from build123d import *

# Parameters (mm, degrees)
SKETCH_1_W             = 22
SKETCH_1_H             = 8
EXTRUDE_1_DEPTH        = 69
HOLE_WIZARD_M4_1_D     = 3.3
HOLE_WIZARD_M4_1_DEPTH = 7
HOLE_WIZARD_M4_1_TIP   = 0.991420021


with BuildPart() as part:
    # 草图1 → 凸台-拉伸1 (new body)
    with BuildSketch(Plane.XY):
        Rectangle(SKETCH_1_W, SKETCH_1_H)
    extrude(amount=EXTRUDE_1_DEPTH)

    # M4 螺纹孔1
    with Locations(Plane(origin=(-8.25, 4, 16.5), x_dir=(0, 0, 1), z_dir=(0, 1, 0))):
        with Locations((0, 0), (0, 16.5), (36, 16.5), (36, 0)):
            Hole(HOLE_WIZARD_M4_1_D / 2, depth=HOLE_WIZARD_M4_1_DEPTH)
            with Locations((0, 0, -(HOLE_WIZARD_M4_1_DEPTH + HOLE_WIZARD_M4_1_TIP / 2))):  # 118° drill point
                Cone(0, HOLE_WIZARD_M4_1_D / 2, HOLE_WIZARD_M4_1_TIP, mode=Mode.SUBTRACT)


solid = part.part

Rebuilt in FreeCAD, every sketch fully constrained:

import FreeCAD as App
import Part
import Sketcher

V = App.Vector

doc = App.newDocument("Part")
body = doc.addObject("PartDesign::Body", "Body")

# Sketch on XY plane
sketch1 = body.newObject("Sketcher::SketchObject", "Sketch")
sketch1.AttachmentSupport = (doc.getObject("XY_Plane"), [""])
sketch1.MapMode = "FlatFace"
sketch1.addGeometry(Part.LineSegment(V(-11, 4, 0), V(-11, -4, 0)), False)
sketch1.addGeometry(Part.LineSegment(V(-11, -4, 0), V(11, -4, 0)), False)
sketch1.addGeometry(Part.LineSegment(V(11, -4, 0), V(11, 4, 0)), False)
sketch1.addGeometry(Part.LineSegment(V(11, 4, 0), V(-11, 4, 0)), False)
sketch1.addConstraint(Sketcher.Constraint("Coincident", 0, 2, 1, 1))
sketch1.addConstraint(Sketcher.Constraint("Coincident", 1, 2, 2, 1))
sketch1.addConstraint(Sketcher.Constraint("Coincident", 2, 2, 3, 1))
sketch1.addConstraint(Sketcher.Constraint("Coincident", 3, 2, 0, 1))
sketch1.addConstraint(Sketcher.Constraint("Vertical", 0))
sketch1.addConstraint(Sketcher.Constraint("Horizontal", 1))
sketch1.addConstraint(Sketcher.Constraint("Vertical", 2))
sketch1.addConstraint(Sketcher.Constraint("Horizontal", 3))
sketch1.addConstraint(Sketcher.Constraint("Symmetric", 0, 2, 2, 2, -1, 1))
sketch1.addConstraint(Sketcher.Constraint("DistanceX", 1, 1, 1, 2, 22.0))
sketch1.addConstraint(Sketcher.Constraint("DistanceY", 0, 2, 0, 1, 8.0))
pad1 = body.newObject("PartDesign::Pad", "Pad")
pad1.Profile = sketch1
pad1.Length = 69

# Sketch on XZ plane
sketch2 = body.newObject("Sketcher::SketchObject", "Sketch001")
sketch2.AttachmentSupport = (doc.getObject("XZ_Plane"), [""])
sketch2.MapMode = "FlatFace"
sketch2.AttachmentOffset = App.Placement(V(0, 0, -4), App.Rotation())
sketch2.addGeometry(Part.Circle(V(-8.2, 16.5, 0), V(0, 0, 1), 1.6), False)
sketch2.addGeometry(Part.Circle(V(8.2, 16.5, 0), V(0, 0, 1), 1.6), False)
sketch2.addGeometry(Part.Circle(V(8.2, 52.5, 0), V(0, 0, 1), 1.6), False)
sketch2.addGeometry(Part.Circle(V(-8.2, 52.5, 0), V(0, 0, 1), 1.6), False)
sketch2.addConstraint(Sketcher.Constraint("Equal", 0, 1))
sketch2.addConstraint(Sketcher.Constraint("Equal", 1, 2))
sketch2.addConstraint(Sketcher.Constraint("Equal", 2, 3))
sketch2.addConstraint(Sketcher.Constraint("Symmetric", 0, 3, 1, 3, -2))
sketch2.addConstraint(Sketcher.Constraint("Symmetric", 2, 3, 3, 3, -2))
sketch2.addConstraint(Sketcher.Constraint("Vertical", 1, 3, 2, 3))
sketch2.addConstraint(Sketcher.Constraint("Diameter", 0, 3.3))
sketch2.addConstraint(Sketcher.Constraint("DistanceY", 1, 3, 2, 3, 36.0))
sketch2.addConstraint(Sketcher.Constraint("DistanceY", -1, 1, 0, 3, 16.5))
sketch2.addConstraint(Sketcher.Constraint("DistanceX", 0, 3, 1, 3, 16.5))
doc.recompute()
hole = body.newObject("PartDesign::Hole", "Hole")
hole.Profile = sketch2
hole.ThreadType = "None"
hole.Diameter = 3.3
hole.DepthType = "Dimension"
hole.Depth = 7
hole.DrillPoint = "Angled"
hole.DrillPointAngle = 118
hole.Reversed = True

doc.recompute()
